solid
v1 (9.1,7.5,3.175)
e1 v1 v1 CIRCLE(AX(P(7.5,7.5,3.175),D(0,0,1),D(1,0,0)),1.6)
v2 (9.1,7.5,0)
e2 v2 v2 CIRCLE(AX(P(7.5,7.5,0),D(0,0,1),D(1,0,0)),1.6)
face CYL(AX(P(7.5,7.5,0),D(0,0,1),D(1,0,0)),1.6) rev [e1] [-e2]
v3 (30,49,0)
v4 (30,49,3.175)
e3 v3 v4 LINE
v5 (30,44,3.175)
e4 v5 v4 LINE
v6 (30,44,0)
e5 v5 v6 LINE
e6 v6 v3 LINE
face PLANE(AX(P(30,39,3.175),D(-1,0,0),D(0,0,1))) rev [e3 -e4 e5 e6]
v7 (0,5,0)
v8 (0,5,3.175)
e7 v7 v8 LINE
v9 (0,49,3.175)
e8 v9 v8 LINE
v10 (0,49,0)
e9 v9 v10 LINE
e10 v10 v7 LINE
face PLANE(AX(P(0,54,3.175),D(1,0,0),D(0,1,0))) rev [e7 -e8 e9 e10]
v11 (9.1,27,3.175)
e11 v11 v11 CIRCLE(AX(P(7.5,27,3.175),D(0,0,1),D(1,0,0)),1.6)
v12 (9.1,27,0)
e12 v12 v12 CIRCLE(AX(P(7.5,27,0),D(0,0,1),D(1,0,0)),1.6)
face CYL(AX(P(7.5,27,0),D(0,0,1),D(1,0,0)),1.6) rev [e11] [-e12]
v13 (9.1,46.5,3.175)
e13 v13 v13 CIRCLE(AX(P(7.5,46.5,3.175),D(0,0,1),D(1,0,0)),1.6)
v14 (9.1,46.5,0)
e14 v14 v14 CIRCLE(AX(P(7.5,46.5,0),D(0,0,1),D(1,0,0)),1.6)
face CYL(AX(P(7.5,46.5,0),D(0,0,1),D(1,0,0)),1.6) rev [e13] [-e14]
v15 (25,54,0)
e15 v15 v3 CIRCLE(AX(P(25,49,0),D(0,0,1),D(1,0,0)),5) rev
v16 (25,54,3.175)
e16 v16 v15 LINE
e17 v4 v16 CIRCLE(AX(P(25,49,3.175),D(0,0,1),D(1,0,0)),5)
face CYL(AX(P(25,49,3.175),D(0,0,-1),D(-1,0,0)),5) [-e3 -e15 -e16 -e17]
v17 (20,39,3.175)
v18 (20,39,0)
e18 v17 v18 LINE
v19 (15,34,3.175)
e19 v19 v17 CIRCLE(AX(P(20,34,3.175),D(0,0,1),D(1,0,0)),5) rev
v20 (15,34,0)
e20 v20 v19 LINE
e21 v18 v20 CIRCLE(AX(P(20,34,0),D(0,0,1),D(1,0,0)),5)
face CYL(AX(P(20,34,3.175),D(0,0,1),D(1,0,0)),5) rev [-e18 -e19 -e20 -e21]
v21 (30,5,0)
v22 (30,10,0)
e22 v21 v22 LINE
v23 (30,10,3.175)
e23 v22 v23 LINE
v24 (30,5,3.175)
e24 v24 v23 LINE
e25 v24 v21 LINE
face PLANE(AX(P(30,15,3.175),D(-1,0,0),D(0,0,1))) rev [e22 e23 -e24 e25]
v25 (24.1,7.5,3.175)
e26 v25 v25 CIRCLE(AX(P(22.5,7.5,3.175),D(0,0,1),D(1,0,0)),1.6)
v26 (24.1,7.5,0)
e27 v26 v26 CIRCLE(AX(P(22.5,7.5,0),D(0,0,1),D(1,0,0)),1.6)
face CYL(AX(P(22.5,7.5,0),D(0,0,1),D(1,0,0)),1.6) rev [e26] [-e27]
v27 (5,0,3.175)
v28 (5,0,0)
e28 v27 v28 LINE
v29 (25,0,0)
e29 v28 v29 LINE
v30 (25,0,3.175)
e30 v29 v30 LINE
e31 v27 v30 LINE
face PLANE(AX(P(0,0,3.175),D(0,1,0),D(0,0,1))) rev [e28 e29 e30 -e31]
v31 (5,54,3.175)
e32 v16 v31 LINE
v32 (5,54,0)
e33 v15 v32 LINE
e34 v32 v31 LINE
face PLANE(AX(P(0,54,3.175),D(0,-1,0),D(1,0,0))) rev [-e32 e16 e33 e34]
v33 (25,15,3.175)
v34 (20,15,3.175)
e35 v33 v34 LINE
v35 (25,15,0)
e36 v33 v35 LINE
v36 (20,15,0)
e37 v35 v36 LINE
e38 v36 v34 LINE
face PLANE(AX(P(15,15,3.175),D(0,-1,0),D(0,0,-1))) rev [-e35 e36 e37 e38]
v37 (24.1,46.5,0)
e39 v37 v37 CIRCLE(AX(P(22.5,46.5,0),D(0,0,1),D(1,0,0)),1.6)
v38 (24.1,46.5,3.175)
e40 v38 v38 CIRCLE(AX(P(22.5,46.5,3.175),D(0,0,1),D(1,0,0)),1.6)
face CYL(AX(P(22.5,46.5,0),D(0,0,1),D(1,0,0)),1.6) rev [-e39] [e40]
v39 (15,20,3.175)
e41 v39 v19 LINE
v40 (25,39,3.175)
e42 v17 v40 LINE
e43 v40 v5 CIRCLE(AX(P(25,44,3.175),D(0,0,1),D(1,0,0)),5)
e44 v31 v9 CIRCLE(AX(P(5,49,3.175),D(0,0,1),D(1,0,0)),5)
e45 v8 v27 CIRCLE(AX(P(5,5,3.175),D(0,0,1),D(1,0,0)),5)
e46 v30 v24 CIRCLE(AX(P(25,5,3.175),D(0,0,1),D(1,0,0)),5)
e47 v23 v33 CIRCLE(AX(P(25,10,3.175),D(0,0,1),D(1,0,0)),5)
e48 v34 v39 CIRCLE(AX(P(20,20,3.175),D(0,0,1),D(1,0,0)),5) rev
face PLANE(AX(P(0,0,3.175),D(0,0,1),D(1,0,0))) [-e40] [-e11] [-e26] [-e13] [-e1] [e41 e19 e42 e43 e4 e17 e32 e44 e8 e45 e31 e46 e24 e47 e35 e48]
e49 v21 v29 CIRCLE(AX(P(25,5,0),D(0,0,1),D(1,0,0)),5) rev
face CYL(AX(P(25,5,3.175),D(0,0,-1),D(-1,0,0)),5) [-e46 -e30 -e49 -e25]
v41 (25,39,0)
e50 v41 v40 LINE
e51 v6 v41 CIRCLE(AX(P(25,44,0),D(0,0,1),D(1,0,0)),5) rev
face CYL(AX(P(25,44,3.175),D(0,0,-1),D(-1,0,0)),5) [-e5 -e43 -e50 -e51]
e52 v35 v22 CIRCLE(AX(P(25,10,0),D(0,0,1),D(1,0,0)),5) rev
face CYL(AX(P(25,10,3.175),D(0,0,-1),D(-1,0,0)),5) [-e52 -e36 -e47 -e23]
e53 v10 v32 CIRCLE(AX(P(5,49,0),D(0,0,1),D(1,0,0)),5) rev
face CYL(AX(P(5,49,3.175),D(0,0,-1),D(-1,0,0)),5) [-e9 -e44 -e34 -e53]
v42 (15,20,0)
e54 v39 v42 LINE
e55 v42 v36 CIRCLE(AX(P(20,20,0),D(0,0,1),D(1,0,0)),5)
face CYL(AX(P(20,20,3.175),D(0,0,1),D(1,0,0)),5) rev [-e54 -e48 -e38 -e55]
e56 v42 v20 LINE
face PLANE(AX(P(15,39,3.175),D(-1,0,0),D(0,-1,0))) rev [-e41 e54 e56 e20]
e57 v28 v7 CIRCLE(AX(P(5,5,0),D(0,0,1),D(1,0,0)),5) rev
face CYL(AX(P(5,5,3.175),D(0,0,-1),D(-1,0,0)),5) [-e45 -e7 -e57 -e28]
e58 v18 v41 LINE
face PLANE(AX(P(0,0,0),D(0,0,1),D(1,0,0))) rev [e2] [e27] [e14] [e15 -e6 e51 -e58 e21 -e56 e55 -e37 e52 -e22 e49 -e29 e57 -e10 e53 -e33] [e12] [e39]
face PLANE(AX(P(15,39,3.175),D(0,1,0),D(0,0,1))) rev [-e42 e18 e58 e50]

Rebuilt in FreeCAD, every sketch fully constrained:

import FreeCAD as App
import Part
import Sketcher
Q = App.Units.Quantity


def edges_at(feature, points):
    """Names of the edges that pass closest to the given points."""
    edges = feature.Shape.Edges
    near = lambda p: min(range(len(edges)), key=lambda i: edges[i].distToShape(Part.Vertex(*p))[0])
    return sorted({f"Edge{near(p) + 1}" for p in points})

doc = App.newDocument("Part")
body = doc.addObject("PartDesign::Body", "Body")

# Sketch on XY plane
sketch1 = doc.addObject("Sketcher::SketchObject", "Sketch")
body.addObject(sketch1)
sketch1.AttachmentSupport = (doc.XY_Plane, [""])
sketch1.MapMode = "FlatFace"
sketch1.addGeometry([
    Part.LineSegment(App.Vector(0, 54, 0), App.Vector(0, 0, 0)),  # 0
    Part.LineSegment(App.Vector(0, 0, 0), App.Vector(30, 0, 0)),  # 1
    Part.LineSegment(App.Vector(30, 0, 0), App.Vector(30, 15, 0)),  # 2
    Part.LineSegment(App.Vector(30, 15, 0), App.Vector(15, 15, 0)),  # 3
    Part.LineSegment(App.Vector(15, 15, 0), App.Vector(15, 39, 0)),  # 4
    Part.LineSegment(App.Vector(15, 39, 0), App.Vector(30, 39, 0)),  # 5
    Part.LineSegment(App.Vector(30, 39, 0), App.Vector(30, 54, 0)),  # 6
    Part.LineSegment(App.Vector(30, 54, 0), App.Vector(0, 54, 0)),  # 7
], False)
sketch1.addConstraint([
    Sketcher.Constraint("Coincident", 0, 2, 1, 1),
    Sketcher.Constraint("Coincident", 1, 2, 2, 1),
    Sketcher.Constraint("Coincident", 2, 2, 3, 1),
    Sketcher.Constraint("Coincident", 3, 2, 4, 1),
    Sketcher.Constraint("Coincident", 4, 2, 5, 1),
    Sketcher.Constraint("Coincident", 5, 2, 6, 1),
    Sketcher.Constraint("Coincident", 6, 2, 7, 1),
    Sketcher.Constraint("Coincident", 7, 2, 0, 1),
    Sketcher.Constraint("Vertical", 0),
    Sketcher.Constraint("Horizontal", 1),
    Sketcher.Constraint("Vertical", 2),
    Sketcher.Constraint("Horizontal", 3),
    Sketcher.Constraint("Vertical", 4),
    Sketcher.Constraint("Horizontal", 5),
    Sketcher.Constraint("Vertical", 6),
    Sketcher.Constraint("Horizontal", 7),
    Sketcher.Constraint("Coincident", 0, 2, -1, 1),
    Sketcher.Constraint("Vertical", 2, 2, 5, 2),
    Sketcher.Constraint("Equal", 5, 2),
    Sketcher.Constraint("Equal", 2, 6),
    Sketcher.Constraint("DistanceX", 1, 1, 1, 2, Q("30 mm")),
    Sketcher.Constraint("DistanceX", 3, 2, 3, 1, Q("15 mm")),
    Sketcher.Constraint("DistanceY", 0, 2, 0, 1, Q("54 mm")),
])
pad1 = doc.addObject("PartDesign::Pad", "Pad")
body.addObject(pad1)
pad1.Profile = sketch1
pad1.Length = 3.175
doc.recompute()

fillet = doc.addObject("PartDesign::Fillet", "Fillet")
body.addObject(fillet)
fillet.Base = (pad1, edges_at(pad1, [
    (15, 15, 1.587),
    (30, 15, 1.587),
    (30, 0, 1.587),
    (0, 0, 1.587),
    (0, 54, 1.587),
    (30, 54, 1.587),
    (30, 39, 1.587),
    (15, 39, 1.587),
]))
fillet.Radius = 5

# Sketch on XY plane
sketch2 = doc.addObject("Sketcher::SketchObject", "Sketch001")
body.addObject(sketch2)
sketch2.AttachmentSupport = (doc.XY_Plane, [""])
sketch2.MapMode = "FlatFace"
sketch2.AttachmentOffset = App.Placement(App.Vector(0, 0, 3.175), App.Rotation())
sketch2.addGeometry([
    Part.Circle(App.Vector(7.5, 7.5, 0), App.Vector(0, 0, 1), 1.6),  # 0
    Part.Circle(App.Vector(7.5, 46.5, 0), App.Vector(0, 0, 1), 1.6),  # 1
    Part.Circle(App.Vector(22.5, 7.5, 0), App.Vector(0, 0, 1), 1.6),  # 2
    Part.Circle(App.Vector(7.5, 27, 0), App.Vector(0, 0, 1), 1.6),  # 3
    Part.Circle(App.Vector(22.5, 46.5, 0), App.Vector(0, 0, 1), 1.6),  # 4
], False)
sketch2.addConstraint([
    Sketcher.Constraint("Equal", 0, 1),
    Sketcher.Constraint("Equal", 1, 2),
    Sketcher.Constraint("Equal", 2, 3),
    Sketcher.Constraint("Equal", 3, 4),
    Sketcher.Constraint("Horizontal", 0, 3, 2, 3),
    Sketcher.Constraint("Horizontal", 1, 3, 4, 3),
    Sketcher.Constraint("Vertical", 0, 3, 1, 3),
    Sketcher.Constraint("Vertical", 1, 3, 3, 3),
    Sketcher.Constraint("Vertical", 2, 3, 4, 3),
    Sketcher.Constraint("Diameter", 0, Q("3.2 mm")),
    Sketcher.Constraint("DistanceY", -1, 1, 3, 3, Q("27 mm")),
    Sketcher.Constraint("DistanceY", 0, 3, 1, 3, Q("39 mm")),
    Sketcher.Constraint("DistanceX", 0, 3, 2, 3, Q("15 mm")),
    Sketcher.Constraint("DistanceX", -1, 1, 0, 3, Q("7.5 mm")),
    Sketcher.Constraint("DistanceY", -1, 1, 0, 3, Q("7.5 mm")),
])
pocket1 = doc.addObject("PartDesign::Pocket", "Pocket")
body.addObject(pocket1)
pocket1.Profile = sketch2
pocket1.Type = "ThroughAll"

doc.recompute()
